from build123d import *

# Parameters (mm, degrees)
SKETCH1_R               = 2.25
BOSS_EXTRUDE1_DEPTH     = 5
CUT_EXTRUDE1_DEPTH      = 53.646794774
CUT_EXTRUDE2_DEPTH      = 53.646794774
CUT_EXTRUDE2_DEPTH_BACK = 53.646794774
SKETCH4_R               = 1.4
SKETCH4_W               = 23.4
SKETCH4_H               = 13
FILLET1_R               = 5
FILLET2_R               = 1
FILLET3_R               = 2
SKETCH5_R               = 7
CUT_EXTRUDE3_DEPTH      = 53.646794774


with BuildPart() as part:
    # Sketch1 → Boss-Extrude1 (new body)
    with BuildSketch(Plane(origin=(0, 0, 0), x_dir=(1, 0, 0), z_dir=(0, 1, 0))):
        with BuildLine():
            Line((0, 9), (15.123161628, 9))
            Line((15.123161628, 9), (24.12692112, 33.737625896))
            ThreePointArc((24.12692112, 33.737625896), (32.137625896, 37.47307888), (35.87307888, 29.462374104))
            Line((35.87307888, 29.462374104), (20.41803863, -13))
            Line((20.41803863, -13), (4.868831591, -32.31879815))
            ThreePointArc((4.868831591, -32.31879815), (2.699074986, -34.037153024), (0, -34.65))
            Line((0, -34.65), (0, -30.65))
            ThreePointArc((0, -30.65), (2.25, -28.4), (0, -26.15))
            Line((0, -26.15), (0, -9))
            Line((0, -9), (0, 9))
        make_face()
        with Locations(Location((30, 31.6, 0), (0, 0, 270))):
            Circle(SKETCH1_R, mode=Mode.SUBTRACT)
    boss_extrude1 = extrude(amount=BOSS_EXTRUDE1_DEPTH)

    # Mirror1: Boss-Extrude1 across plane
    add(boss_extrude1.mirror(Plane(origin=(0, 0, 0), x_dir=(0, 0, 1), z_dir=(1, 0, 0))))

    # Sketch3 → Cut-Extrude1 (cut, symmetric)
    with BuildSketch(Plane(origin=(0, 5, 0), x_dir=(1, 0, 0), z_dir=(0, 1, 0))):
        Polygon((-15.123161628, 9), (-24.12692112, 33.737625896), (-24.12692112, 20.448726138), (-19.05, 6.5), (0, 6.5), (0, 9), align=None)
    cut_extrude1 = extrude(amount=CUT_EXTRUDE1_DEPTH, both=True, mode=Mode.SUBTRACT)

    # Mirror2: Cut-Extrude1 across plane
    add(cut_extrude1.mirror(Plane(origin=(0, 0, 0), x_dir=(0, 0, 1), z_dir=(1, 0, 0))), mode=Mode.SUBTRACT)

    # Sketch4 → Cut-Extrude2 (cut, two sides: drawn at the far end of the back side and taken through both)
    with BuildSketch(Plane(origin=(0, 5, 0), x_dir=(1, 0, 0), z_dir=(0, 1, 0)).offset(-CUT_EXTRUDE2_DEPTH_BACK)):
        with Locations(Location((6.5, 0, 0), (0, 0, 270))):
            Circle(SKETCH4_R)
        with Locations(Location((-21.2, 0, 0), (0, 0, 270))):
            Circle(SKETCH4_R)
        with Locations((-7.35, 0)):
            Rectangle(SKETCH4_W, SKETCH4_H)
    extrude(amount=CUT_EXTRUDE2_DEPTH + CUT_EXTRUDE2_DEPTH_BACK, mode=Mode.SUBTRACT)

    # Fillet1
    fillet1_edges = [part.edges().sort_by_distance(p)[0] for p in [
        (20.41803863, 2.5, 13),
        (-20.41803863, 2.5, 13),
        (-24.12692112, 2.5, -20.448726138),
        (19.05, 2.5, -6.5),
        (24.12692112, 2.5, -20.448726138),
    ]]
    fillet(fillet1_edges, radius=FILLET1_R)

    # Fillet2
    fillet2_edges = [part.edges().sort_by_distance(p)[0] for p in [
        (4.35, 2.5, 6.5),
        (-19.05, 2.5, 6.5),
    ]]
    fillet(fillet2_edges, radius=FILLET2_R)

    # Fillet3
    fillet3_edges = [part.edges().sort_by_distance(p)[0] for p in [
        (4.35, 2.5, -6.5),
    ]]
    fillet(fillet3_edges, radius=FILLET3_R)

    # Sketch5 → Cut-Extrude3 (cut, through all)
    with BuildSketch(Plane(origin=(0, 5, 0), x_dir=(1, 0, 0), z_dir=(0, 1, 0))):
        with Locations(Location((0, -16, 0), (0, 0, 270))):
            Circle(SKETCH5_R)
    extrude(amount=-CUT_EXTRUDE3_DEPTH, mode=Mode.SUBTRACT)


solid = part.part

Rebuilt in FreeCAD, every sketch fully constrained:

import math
import FreeCAD as App
import Part
import Sketcher

V = App.Vector
Q = App.Units.Quantity


def edges_at(feature, points):
    """Names of the edges that pass closest to the given points."""
    edges = feature.Shape.Edges
    near = lambda p: min(range(len(edges)), key=lambda i: edges[i].distToShape(Part.Vertex(*p))[0])
    return sorted({f"Edge{near(p) + 1}" for p in points})


def add_polygon(sketch, points):
    """Adds a closed chain of lines whose ends are joined by coincident constraints."""
    first, n = sketch.GeometryCount, len(points)
    for a, b in zip(points, points[1:] + points[:1]):
        sketch.addGeometry(Part.LineSegment(App.Vector(*a, 0), App.Vector(*b, 0)), False)
    for i in range(n):
        sketch.addConstraint(Sketcher.Constraint("Coincident", first + i, 2, first + (i + 1) % n, 1))

doc = App.newDocument("Part")
body = doc.addObject("PartDesign::Body", "Body")

# Sketch on XZ plane
sketch1 = body.newObject("Sketcher::SketchObject", "Sketch")
sketch1.AttachmentSupport = (doc.getObject("XZ_Plane"), [""])
sketch1.MapMode = "FlatFace"
sketch1.addGeometry(Part.LineSegment(V(15.1, -9, 0), V(0, -9, 0)), False)
sketch1.addGeometry(Part.LineSegment(V(0, -9, 0), V(0, 26.1, 0)), False)
sketch1.addGeometry(Part.ArcOfCircle(Part.Circle(V(0, 28.4, 0), V(0, 0, 1), 2.2), math.radians(-90), math.radians(90)), False)
sketch1.addGeometry(Part.LineSegment(V(0, 30.6, 0), V(0, 34.6, 0)), False)
sketch1.addGeometry(Part.ArcOfCircle(Part.Circle(V(0, 28.4, 0), V(0, 0, 1), 6.3), math.radians(39), math.radians(90)), False)
sketch1.addGeometry(Part.LineSegment(V(4.9, 32.3, 0), V(20.4, 13, 0)), False)
sketch1.addGeometry(Part.LineSegment(V(20.4, 13, 0), V(35.9, -29.5, 0)), False)
sketch1.addGeometry(Part.ArcOfCircle(Part.Circle(V(30, -31.6, 0), V(0, 0, 1), 6.2), math.radians(-160), math.radians(20)), False)
sketch1.addGeometry(Part.LineSegment(V(24.1, -33.7, 0), V(15.1, -9, 0)), False)
sketch1.addGeometry(Part.Circle(V(30, -31.6, 0), V(0, 0, 1), 2.2), False)
sketch1.addConstraint(Sketcher.Constraint("Coincident", 0, 2, 1, 1))
sketch1.addConstraint(Sketcher.Constraint("Coincident", 1, 2, 2, 1))
sketch1.addConstraint(Sketcher.Constraint("Coincident", 2, 2, 3, 1))
sketch1.addConstraint(Sketcher.Constraint("Coincident", 3, 2, 4, 2))
sketch1.addConstraint(Sketcher.Constraint("Tangent", 4, 1, 5, 1))
sketch1.addConstraint(Sketcher.Constraint("Coincident", 5, 2, 6, 1))
sketch1.addConstraint(Sketcher.Constraint("Tangent", 6, 2, 7, 2))
sketch1.addConstraint(Sketcher.Constraint("Tangent", 7, 1, 8, 1))
sketch1.addConstraint(Sketcher.Constraint("Coincident", 8, 2, 0, 1))
sketch1.addConstraint(Sketcher.Constraint("Horizontal", 0))
sketch1.addConstraint(Sketcher.Constraint("Vertical", 1))
sketch1.addConstraint(Sketcher.Constraint("Vertical", 3))
sketch1.addConstraint(Sketcher.Constraint("Coincident", 4, 3, 2, 3))
sketch1.addConstraint(Sketcher.Constraint("Coincident", 9, 3, 7, 3))
sketch1.addConstraint(Sketcher.Constraint("Equal", 4, 7))
sketch1.addConstraint(Sketcher.Constraint("Equal", 2, 9))
sketch1.addConstraint(Sketcher.Constraint("PointOnObject", 2, 3, -2))
sketch1.addConstraint(Sketcher.Constraint("PointOnObject", 0, 2, -2))
sketch1.addConstraint(Sketcher.Constraint("PointOnObject", 2, 2, -2))
sketch1.addConstraint(Sketcher.Constraint("Parallel", 6, 8))
sketch1.addConstraint(Sketcher.Constraint("Diameter", 9, Q("4.5 mm")))
sketch1.addConstraint(Sketcher.Constraint("DistanceY", 3, 1, 3, 2, Q("4 mm")))
sketch1.addConstraint(Sketcher.Constraint("Angle", 6, Q("-70 deg")))
sketch1.addConstraint(Sketcher.Constraint("DistanceX", -1, 1, 7, 3, Q("30 mm")))
sketch1.addConstraint(Sketcher.Constraint("DistanceY", 0, 2, -1, 1, Q("9 mm")))
sketch1.addConstraint(Sketcher.Constraint("DistanceY", -1, 1, 5, 2, Q("13 mm")))
sketch1.addConstraint(Sketcher.Constraint("DistanceY", 7, 3, 4, 3, Q("60 mm")))
sketch1.addConstraint(Sketcher.Constraint("DistanceY", 1, 1, 1, 2, Q("35.15 mm")))
pad1 = body.newObject("PartDesign::Pad", "Pad")
pad1.Profile = sketch1
pad1.Length = 5
pad1.Reversed = True
doc.recompute()

mirrored = body.newObject("PartDesign::Mirrored", "Mirrored")
mirrored.Originals = [pad1]
mirrored.MirrorPlane = (doc.getObject("YZ_Plane"), [""])
body.Tip = mirrored

# Sketch on XZ plane
sketch2 = body.newObject("Sketcher::SketchObject", "Sketch001")
sketch2.AttachmentSupport = (doc.getObject("XZ_Plane"), [""])
sketch2.MapMode = "FlatFace"
sketch2.AttachmentOffset = App.Placement(V(0, 0, -5), App.Rotation())
add_polygon(sketch2, [(-15.1, -9), (-24.1, -33.7), (-24.1, -20.4), (-19.1, -6.5), (0, -6.5), (0, -9)])  # lines 0-5
sketch2.addConstraint(Sketcher.Constraint("Vertical", 1))
sketch2.addConstraint(Sketcher.Constraint("Horizontal", 3))
sketch2.addConstraint(Sketcher.Constraint("Vertical", 4))
sketch2.addConstraint(Sketcher.Constraint("Horizontal", 5))
sketch2.addConstraint(Sketcher.Constraint("PointOnObject", 3, 2, -2))
sketch2.addConstraint(Sketcher.Constraint("Parallel", 0, 2))
sketch2.addConstraint(Sketcher.Constraint("Angle", 0, Q("-110 deg")))
sketch2.addConstraint(Sketcher.Constraint("DistanceY", 4, 2, 4, 1, Q("2.5 mm")))
sketch2.addConstraint(Sketcher.Constraint("DistanceY", 4, 2, -1, 1, Q("9 mm")))
sketch2.addConstraint(Sketcher.Constraint("DistanceX", 3, 1, 3, 2, Q("19.05 mm")))
sketch2.addConstraint(Sketcher.Constraint("DistanceY", 1, 1, 1, 2, Q("13.2889 mm")))
sketch2.addConstraint(Sketcher.Constraint("Distance", 0, Q("26.325232 mm")))
pocket1 = body.newObject("PartDesign::Pocket", "Pocket")
pocket1.Profile = sketch2
pocket1.Length = 107.29359
pocket1.Midplane = True
doc.recompute()

mirrored2 = body.newObject("PartDesign::Mirrored", "Mirrored001")
mirrored2.Originals = [pocket1]
mirrored2.MirrorPlane = (doc.getObject("YZ_Plane"), [""])
body.Tip = mirrored2

# Sketch on XZ plane
sketch3 = body.newObject("Sketcher::SketchObject", "Sketch002")
sketch3.AttachmentSupport = (doc.getObject("XZ_Plane"), [""])
sketch3.MapMode = "FlatFace"
sketch3.AttachmentOffset = App.Placement(V(0, 0, -5), App.Rotation())
sketch3.addGeometry(Part.Circle(V(6.5, 0, 0), V(0, 0, 1), 1.4), False)  # 0
sketch3.addGeometry(Part.Circle(V(-21.2, 0, 0), V(0, 0, 1), 1.4), False)  # 1
add_polygon(sketch3, [(-19.1, -6.5), (-19.1, 6.5), (4.3, 6.5), (4.3, -6.5)])  # lines 2-5
sketch3.addConstraint(Sketcher.Constraint("Vertical", 2))
sketch3.addConstraint(Sketcher.Constraint("Horizontal", 3))
sketch3.addConstraint(Sketcher.Constraint("Vertical", 4))
sketch3.addConstraint(Sketcher.Constraint("Horizontal", 5))
sketch3.addConstraint(Sketcher.Constraint("Equal", 0, 1))
sketch3.addConstraint(Sketcher.Constraint("PointOnObject", 0, 3, -1))
sketch3.addConstraint(Sketcher.Constraint("PointOnObject", 1, 3, -1))
sketch3.addConstraint(Sketcher.Constraint("Diameter", 0, Q("2.8 mm")))
sketch3.addConstraint(Sketcher.Constraint("DistanceY", 2, 1, 2, 2, Q("13 mm")))
sketch3.addConstraint(Sketcher.Constraint("DistanceX", 3, 1, 3, 2, Q("23.4 mm")))
sketch3.addConstraint(Sketcher.Constraint("DistanceX", -1, 1, 0, 3, Q("6.5 mm")))
sketch3.addConstraint(Sketcher.Constraint("DistanceX", 1, 3, -1, 1, Q("21.2 mm")))
sketch3.addConstraint(Sketcher.Constraint("DistanceY", -1, 1, 2, 2, Q("6.5 mm")))
sketch3.addConstraint(Sketcher.Constraint("DistanceX", 2, 2, -1, 1, Q("19.05 mm")))
pocket2 = body.newObject("PartDesign::Pocket", "Pocket001")
pocket2.Profile = sketch3
pocket2.Type = "ThroughAll"
pocket2.Midplane = True
doc.recompute()

fillet = body.newObject("PartDesign::Fillet", "Fillet")
fillet.Base = (pocket2, edges_at(pocket2, [
    (20.418, 2.5, 13),
    (-20.418, 2.5, 13),
    (-24.127, 2.5, -20.449),
    (19.05, 2.5, -6.5),
    (24.127, 2.5, -20.449),
]))
fillet.Radius = 5
doc.recompute()

fillet2 = body.newObject("PartDesign::Fillet", "Fillet001")
fillet2.Base = (fillet, edges_at(fillet, [(4.35, 2.5, 6.5), (-19.05, 2.5, 6.5)]))
fillet2.Radius = 1
doc.recompute()

fillet3 = body.newObject("PartDesign::Fillet", "Fillet002")
fillet3.Base = (fillet2, edges_at(fillet2, [(4.35, 2.5, -6.5)]))
fillet3.Radius = 2

# Sketch on XZ plane
sketch4 = body.newObject("Sketcher::SketchObject", "Sketch003")
sketch4.AttachmentSupport = (doc.getObject("XZ_Plane"), [""])
sketch4.MapMode = "FlatFace"
sketch4.AttachmentOffset = App.Placement(V(0, 0, -5), App.Rotation())
sketch4.addGeometry(Part.Circle(V(0, 16, 0), V(0, 0, 1), 7), False)
sketch4.addConstraint(Sketcher.Constraint("PointOnObject", 0, 3, -2))
sketch4.addConstraint(Sketcher.Constraint("Diameter", 0, Q("14 mm")))
sketch4.addConstraint(Sketcher.Constraint("DistanceY", -1, 1, 0, 3, Q("16 mm")))
pocket3 = body.newObject("PartDesign::Pocket", "Pocket002")
pocket3.Profile = sketch4
pocket3.Type = "ThroughAll"
pocket3.Reversed = True

doc.recompute()
